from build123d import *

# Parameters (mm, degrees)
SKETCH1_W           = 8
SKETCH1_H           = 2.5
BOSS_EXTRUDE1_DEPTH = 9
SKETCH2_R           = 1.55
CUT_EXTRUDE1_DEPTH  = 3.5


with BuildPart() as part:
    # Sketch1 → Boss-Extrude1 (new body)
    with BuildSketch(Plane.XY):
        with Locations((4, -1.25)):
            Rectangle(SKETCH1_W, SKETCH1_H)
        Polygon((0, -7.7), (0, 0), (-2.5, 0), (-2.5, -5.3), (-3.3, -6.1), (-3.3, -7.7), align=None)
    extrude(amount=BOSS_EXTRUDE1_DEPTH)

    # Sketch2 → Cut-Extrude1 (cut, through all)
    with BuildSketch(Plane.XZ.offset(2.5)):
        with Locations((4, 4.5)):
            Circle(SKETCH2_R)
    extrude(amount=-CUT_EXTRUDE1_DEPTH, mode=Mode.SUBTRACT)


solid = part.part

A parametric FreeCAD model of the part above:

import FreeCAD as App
import Part
import Sketcher

V = App.Vector
Q = App.Units.Quantity


def add_polygon(sketch, points):
    """Adds a closed chain of lines whose ends are joined by coincident constraints."""
    first, n = sketch.GeometryCount, len(points)
    for a, b in zip(points, points[1:] + points[:1]):
        sketch.addGeometry(Part.LineSegment(App.Vector(*a, 0), App.Vector(*b, 0)), False)
    for i in range(n):
        sketch.addConstraint(Sketcher.Constraint("Coincident", first + i, 2, first + (i + 1) % n, 1))

doc = App.newDocument("Part")
body = doc.addObject("PartDesign::Body", "Body")

sketch1 = body.newObject("Sketcher::SketchObject", "Sketch")
sketch1.AttachmentSupport = (doc.getObject("XY_Plane"), [""])
sketch1.MapMode = "FlatFace"
add_polygon(sketch1, [(0, -2.5), (8, -2.5), (8, 0), (-2.5, 0), (-2.5, -5.3), (-3.3, -6.1), (-3.3, -7.7), (0, -7.7)])
sketch1.addConstraint([
    Sketcher.Constraint("Horizontal", 0),
    Sketcher.Constraint("Vertical", 1),
    Sketcher.Constraint("Horizontal", 2),
    Sketcher.Constraint("Vertical", 3),
    Sketcher.Constraint("Vertical", 5),
    Sketcher.Constraint("Horizontal", 6),
    Sketcher.Constraint("Vertical", 7),
    Sketcher.Constraint("PointOnObject", 1, 2, -1),
    Sketcher.Constraint("PointOnObject", 6, 2, -2),
    Sketcher.Constraint("DistanceX", 0, 1, 0, 2, Q("8 mm")),
    Sketcher.Constraint("Angle", 4, Q("-135 deg")),
    Sketcher.Constraint("DistanceX", 2, 2, 2, 1, Q("10.5 mm")),
    Sketcher.Constraint("DistanceX", 6, 1, 6, 2, Q("3.3 mm")),
    Sketcher.Constraint("DistanceY", 1, 1, 1, 2, Q("2.5 mm")),
    Sketcher.Constraint("DistanceY", 3, 2, 3, 1, Q("5.3 mm")),
    Sketcher.Constraint("DistanceY", 5, 2, 5, 1, Q("1.6 mm")),
])
pad1 = body.newObject("PartDesign::Pad", "Pad")
pad1.Profile = sketch1
pad1.Length = 9

sketch2 = body.newObject("Sketcher::SketchObject", "Sketch001")
sketch2.AttachmentSupport = (doc.getObject("XZ_Plane"), [""])
sketch2.MapMode = "FlatFace"
sketch2.AttachmentOffset = App.Placement(V(0, 0, 2.5), App.Rotation())
sketch2.addGeometry(Part.Circle(V(4, 4.5, 0), V(0, 0, 1), 1.6), False)
sketch2.addConstraint([
    Sketcher.Constraint("Diameter", 0, Q("3.1 mm")),
    Sketcher.Constraint("DistanceX", -1, 1, 0, 3, Q("4 mm")),
    Sketcher.Constraint("DistanceY", -1, 1, 0, 3, Q("4.5 mm")),
])
pocket1 = body.newObject("PartDesign::Pocket", "Pocket")
pocket1.Profile = sketch2
pocket1.Type = "ThroughAll"

doc.recompute()
